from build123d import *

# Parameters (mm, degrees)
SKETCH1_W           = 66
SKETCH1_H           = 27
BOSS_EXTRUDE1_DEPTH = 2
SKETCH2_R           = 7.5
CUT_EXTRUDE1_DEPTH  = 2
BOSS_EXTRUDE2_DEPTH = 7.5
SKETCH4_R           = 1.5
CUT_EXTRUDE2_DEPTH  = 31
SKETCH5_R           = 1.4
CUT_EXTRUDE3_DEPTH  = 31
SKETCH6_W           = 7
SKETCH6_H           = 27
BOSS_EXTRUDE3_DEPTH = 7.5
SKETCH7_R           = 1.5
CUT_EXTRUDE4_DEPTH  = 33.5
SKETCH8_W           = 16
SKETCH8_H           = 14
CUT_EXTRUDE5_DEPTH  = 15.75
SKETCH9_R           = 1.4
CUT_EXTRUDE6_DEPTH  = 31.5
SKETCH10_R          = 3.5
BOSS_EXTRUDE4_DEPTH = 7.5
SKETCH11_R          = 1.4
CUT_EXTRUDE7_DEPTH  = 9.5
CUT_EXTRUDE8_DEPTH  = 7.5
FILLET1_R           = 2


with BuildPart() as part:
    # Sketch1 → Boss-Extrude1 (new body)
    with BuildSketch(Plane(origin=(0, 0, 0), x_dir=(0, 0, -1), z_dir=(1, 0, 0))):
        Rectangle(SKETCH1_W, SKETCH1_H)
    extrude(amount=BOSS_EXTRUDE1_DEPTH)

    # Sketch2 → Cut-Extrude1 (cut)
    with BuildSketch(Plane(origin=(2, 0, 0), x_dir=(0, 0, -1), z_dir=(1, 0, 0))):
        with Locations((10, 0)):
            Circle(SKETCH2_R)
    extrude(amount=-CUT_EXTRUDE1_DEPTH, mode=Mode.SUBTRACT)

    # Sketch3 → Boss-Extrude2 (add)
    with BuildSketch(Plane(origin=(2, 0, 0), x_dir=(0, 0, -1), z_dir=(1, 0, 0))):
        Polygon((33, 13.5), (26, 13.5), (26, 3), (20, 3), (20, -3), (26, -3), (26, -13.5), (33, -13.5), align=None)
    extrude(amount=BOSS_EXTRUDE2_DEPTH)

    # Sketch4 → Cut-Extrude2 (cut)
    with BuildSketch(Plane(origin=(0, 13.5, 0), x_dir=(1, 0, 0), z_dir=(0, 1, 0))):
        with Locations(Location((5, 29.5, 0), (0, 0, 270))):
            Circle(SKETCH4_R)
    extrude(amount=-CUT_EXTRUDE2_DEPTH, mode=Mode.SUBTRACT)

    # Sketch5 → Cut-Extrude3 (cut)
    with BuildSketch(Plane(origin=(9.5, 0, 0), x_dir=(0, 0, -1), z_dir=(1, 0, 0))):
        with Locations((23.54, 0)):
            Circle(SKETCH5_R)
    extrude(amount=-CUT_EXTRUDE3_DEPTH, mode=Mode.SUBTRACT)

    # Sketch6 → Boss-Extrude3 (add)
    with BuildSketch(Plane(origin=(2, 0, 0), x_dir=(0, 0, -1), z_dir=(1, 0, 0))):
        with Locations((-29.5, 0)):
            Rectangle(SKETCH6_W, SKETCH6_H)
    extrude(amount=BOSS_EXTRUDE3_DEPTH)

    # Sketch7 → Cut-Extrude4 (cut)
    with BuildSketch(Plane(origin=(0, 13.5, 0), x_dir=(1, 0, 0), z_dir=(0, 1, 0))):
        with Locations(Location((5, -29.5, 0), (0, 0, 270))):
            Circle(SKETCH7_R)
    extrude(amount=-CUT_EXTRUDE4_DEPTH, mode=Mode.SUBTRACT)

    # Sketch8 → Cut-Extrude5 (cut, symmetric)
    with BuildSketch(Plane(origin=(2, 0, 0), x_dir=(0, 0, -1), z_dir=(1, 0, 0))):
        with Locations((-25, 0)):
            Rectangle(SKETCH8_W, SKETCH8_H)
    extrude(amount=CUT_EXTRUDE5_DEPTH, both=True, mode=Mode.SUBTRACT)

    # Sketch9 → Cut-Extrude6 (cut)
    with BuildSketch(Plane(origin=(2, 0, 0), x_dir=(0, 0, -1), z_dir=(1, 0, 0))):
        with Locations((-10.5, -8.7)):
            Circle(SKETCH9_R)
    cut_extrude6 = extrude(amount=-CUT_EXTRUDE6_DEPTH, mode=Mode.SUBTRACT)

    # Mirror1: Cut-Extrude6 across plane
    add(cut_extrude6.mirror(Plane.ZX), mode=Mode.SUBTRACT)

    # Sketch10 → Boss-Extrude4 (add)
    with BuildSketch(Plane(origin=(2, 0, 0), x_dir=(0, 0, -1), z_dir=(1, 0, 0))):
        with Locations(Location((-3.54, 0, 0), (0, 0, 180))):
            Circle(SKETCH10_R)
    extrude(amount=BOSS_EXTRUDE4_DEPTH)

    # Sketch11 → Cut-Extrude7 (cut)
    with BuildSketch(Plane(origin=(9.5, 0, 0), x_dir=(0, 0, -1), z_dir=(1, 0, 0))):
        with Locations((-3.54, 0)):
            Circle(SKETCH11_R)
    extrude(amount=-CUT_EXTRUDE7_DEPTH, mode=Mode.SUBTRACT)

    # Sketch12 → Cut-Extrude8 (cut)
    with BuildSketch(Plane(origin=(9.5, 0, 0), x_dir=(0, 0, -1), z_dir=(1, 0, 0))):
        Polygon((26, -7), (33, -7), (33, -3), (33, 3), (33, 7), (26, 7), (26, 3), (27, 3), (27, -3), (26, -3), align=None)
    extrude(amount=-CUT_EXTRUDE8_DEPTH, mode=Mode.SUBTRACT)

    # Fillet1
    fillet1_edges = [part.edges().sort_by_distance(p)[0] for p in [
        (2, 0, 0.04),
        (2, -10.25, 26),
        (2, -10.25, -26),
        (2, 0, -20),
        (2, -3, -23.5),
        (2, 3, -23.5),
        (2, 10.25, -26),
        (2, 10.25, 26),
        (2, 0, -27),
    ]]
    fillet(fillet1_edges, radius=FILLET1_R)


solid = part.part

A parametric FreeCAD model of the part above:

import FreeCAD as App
import Part
import Sketcher

V = App.Vector
Q = App.Units.Quantity


def edges_at(feature, points):
    """Names of the edges that pass closest to the given points."""
    edges = feature.Shape.Edges
    near = lambda p: min(range(len(edges)), key=lambda i: edges[i].distToShape(Part.Vertex(*p))[0])
    return sorted({f"Edge{near(p) + 1}" for p in points})

doc = App.newDocument("Part")
body = doc.addObject("PartDesign::Body", "Body")

sketch1 = body.newObject("Sketcher::SketchObject", "Sketch")
sketch1.AttachmentSupport = (doc.getObject("YZ_Plane"), [""])
sketch1.MapMode = "FlatFace"
sketch1.addGeometry(Part.LineSegment(V(13.5, 33, 0), V(-13.5, 33, 0)), False)
sketch1.addGeometry(Part.LineSegment(V(-13.5, 33, 0), V(-13.5, -33, 0)), False)
sketch1.addGeometry(Part.LineSegment(V(-13.5, -33, 0), V(13.5, -33, 0)), False)
sketch1.addGeometry(Part.LineSegment(V(13.5, -33, 0), V(13.5, 33, 0)), False)
sketch1.addConstraint(Sketcher.Constraint("Coincident", 0, 2, 1, 1))
sketch1.addConstraint(Sketcher.Constraint("Coincident", 1, 2, 2, 1))
sketch1.addConstraint(Sketcher.Constraint("Coincident", 2, 2, 3, 1))
sketch1.addConstraint(Sketcher.Constraint("Coincident", 3, 2, 0, 1))
sketch1.addConstraint(Sketcher.Constraint("Horizontal", 0))
sketch1.addConstraint(Sketcher.Constraint("Vertical", 1))
sketch1.addConstraint(Sketcher.Constraint("Horizontal", 2))
sketch1.addConstraint(Sketcher.Constraint("Vertical", 3))
sketch1.addConstraint(Sketcher.Constraint("Symmetric", 0, 2, 2, 2, -1, 1))
sketch1.addConstraint(Sketcher.Constraint("DistanceX", 0, 2, 0, 1, Q("27 mm")))
sketch1.addConstraint(Sketcher.Constraint("DistanceY", 1, 2, 1, 1, Q("66 mm")))
pad1 = body.newObject("PartDesign::Pad", "Pad")
pad1.Profile = sketch1
pad1.Length = 2

sketch2 = body.newObject("Sketcher::SketchObject", "Sketch001")
sketch2.AttachmentSupport = (doc.getObject("YZ_Plane"), [""])
sketch2.MapMode = "FlatFace"
sketch2.AttachmentOffset = App.Placement(V(0, 0, 2), App.Rotation())
sketch2.addGeometry(Part.Circle(V(0, -10, 0), V(0, 0, 1), 7.5), False)
sketch2.addConstraint(Sketcher.Constraint("PointOnObject", 0, 3, -2))
sketch2.addConstraint(Sketcher.Constraint("Diameter", 0, Q("15 mm")))
sketch2.addConstraint(Sketcher.Constraint("DistanceY", 0, 3, -1, 1, Q("10 mm")))
pocket1 = body.newObject("PartDesign::Pocket", "Pocket")
pocket1.Profile = sketch2
pocket1.Length = 2

sketch3 = body.newObject("Sketcher::SketchObject", "Sketch002")
sketch3.AttachmentSupport = (doc.getObject("YZ_Plane"), [""])
sketch3.MapMode = "FlatFace"
sketch3.AttachmentOffset = App.Placement(V(0, 0, 2), App.Rotation())
sketch3.addGeometry(Part.LineSegment(V(13.5, -33, 0), V(13.5, -26, 0)), False)
sketch3.addGeometry(Part.LineSegment(V(13.5, -26, 0), V(3, -26, 0)), False)
sketch3.addGeometry(Part.LineSegment(V(3, -26, 0), V(3, -20, 0)), False)
sketch3.addGeometry(Part.LineSegment(V(3, -20, 0), V(-3, -20, 0)), False)
sketch3.addGeometry(Part.LineSegment(V(-3, -20, 0), V(-3, -26, 0)), False)
sketch3.addGeometry(Part.LineSegment(V(-3, -26, 0), V(-13.5, -26, 0)), False)
sketch3.addGeometry(Part.LineSegment(V(-13.5, -26, 0), V(-13.5, -33, 0)), False)
sketch3.addGeometry(Part.LineSegment(V(-13.5, -33, 0), V(13.5, -33, 0)), False)
sketch3.addConstraint(Sketcher.Constraint("Coincident", 0, 2, 1, 1))
sketch3.addConstraint(Sketcher.Constraint("Coincident", 1, 2, 2, 1))
sketch3.addConstraint(Sketcher.Constraint("Coincident", 2, 2, 3, 1))
sketch3.addConstraint(Sketcher.Constraint("Coincident", 3, 2, 4, 1))
sketch3.addConstraint(Sketcher.Constraint("Coincident", 4, 2, 5, 1))
sketch3.addConstraint(Sketcher.Constraint("Coincident", 5, 2, 6, 1))
sketch3.addConstraint(Sketcher.Constraint("Coincident", 6, 2, 7, 1))
sketch3.addConstraint(Sketcher.Constraint("Coincident", 7, 2, 0, 1))
sketch3.addConstraint(Sketcher.Constraint("Vertical", 0))
sketch3.addConstraint(Sketcher.Constraint("Horizontal", 1))
sketch3.addConstraint(Sketcher.Constraint("Vertical", 2))
sketch3.addConstraint(Sketcher.Constraint("Horizontal", 3))
sketch3.addConstraint(Sketcher.Constraint("Vertical", 4))
sketch3.addConstraint(Sketcher.Constraint("Horizontal", 5))
sketch3.addConstraint(Sketcher.Constraint("Vertical", 6))
sketch3.addConstraint(Sketcher.Constraint("Horizontal", 7))
sketch3.addConstraint(Sketcher.Constraint("Symmetric", 1, 2, 4, 2, -2))
sketch3.addConstraint(Sketcher.Constraint("Equal", 1, 5))
sketch3.addConstraint(Sketcher.Constraint("Equal", 3, 2))
sketch3.addConstraint(Sketcher.Constraint("DistanceX", 3, 2, 3, 1, Q("6 mm")))
sketch3.addConstraint(Sketcher.Constraint("DistanceX", 7, 1, 7, 2, Q("27 mm")))
sketch3.addConstraint(Sketcher.Constraint("DistanceY", 0, 1, 0, 2, Q("7 mm")))
sketch3.addConstraint(Sketcher.Constraint("DistanceY", 0, 2, -1, 1, Q("26 mm")))
pad2 = body.newObject("PartDesign::Pad", "Pad001")
pad2.Profile = sketch3
pad2.Length = 7.5

sketch4 = body.newObject("Sketcher::SketchObject", "Sketch003")
sketch4.AttachmentSupport = (doc.getObject("XZ_Plane"), [""])
sketch4.MapMode = "FlatFace"
sketch4.AttachmentOffset = App.Placement(V(0, 0, -13.5), App.Rotation())
sketch4.addGeometry(Part.Circle(V(5, -29.5, 0), V(0, 0, 1), 1.5), False)
sketch4.addConstraint(Sketcher.Constraint("Diameter", 0, Q("3 mm")))
sketch4.addConstraint(Sketcher.Constraint("DistanceX", -1, 1, 0, 3, Q("5 mm")))
sketch4.addConstraint(Sketcher.Constraint("DistanceY", 0, 3, -1, 1, Q("29.5 mm")))
pocket2 = body.newObject("PartDesign::Pocket", "Pocket001")
pocket2.Profile = sketch4
pocket2.Length = 31
pocket2.Reversed = True

sketch5 = body.newObject("Sketcher::SketchObject", "Sketch004")
sketch5.AttachmentSupport = (doc.getObject("YZ_Plane"), [""])
sketch5.MapMode = "FlatFace"
sketch5.AttachmentOffset = App.Placement(V(0, 0, 9.5), App.Rotation())
sketch5.addGeometry(Part.Circle(V(0, -23.54, 0), V(0, 0, 1), 1.4), False)
sketch5.addConstraint(Sketcher.Constraint("PointOnObject", 0, 3, -2))
sketch5.addConstraint(Sketcher.Constraint("Diameter", 0, Q("2.8 mm")))
sketch5.addConstraint(Sketcher.Constraint("DistanceY", 0, 3, -1, 1, Q("23.54 mm")))
pocket3 = body.newObject("PartDesign::Pocket", "Pocket002")
pocket3.Profile = sketch5
pocket3.Length = 31

sketch6 = body.newObject("Sketcher::SketchObject", "Sketch005")
sketch6.AttachmentSupport = (doc.getObject("YZ_Plane"), [""])
sketch6.MapMode = "FlatFace"
sketch6.AttachmentOffset = App.Placement(V(0, 0, 2), App.Rotation())
sketch6.addGeometry(Part.LineSegment(V(13.5, 33, 0), V(-13.5, 33, 0)), False)
sketch6.addGeometry(Part.LineSegment(V(-13.5, 33, 0), V(-13.5, 26, 0)), False)
sketch6.addGeometry(Part.LineSegment(V(-13.5, 26, 0), V(13.5, 26, 0)), False)
sketch6.addGeometry(Part.LineSegment(V(13.5, 26, 0), V(13.5, 33, 0)), False)
sketch6.addConstraint(Sketcher.Constraint("Coincident", 0, 2, 1, 1))
sketch6.addConstraint(Sketcher.Constraint("Coincident", 1, 2, 2, 1))
sketch6.addConstraint(Sketcher.Constraint("Coincident", 2, 2, 3, 1))
sketch6.addConstraint(Sketcher.Constraint("Coincident", 3, 2, 0, 1))
sketch6.addConstraint(Sketcher.Constraint("Horizontal", 0))
sketch6.addConstraint(Sketcher.Constraint("Vertical", 1))
sketch6.addConstraint(Sketcher.Constraint("Horizontal", 2))
sketch6.addConstraint(Sketcher.Constraint("Vertical", 3))
sketch6.addConstraint(Sketcher.Constraint("DistanceX", 0, 2, 0, 1, Q("27 mm")))
sketch6.addConstraint(Sketcher.Constraint("DistanceY", 1, 2, 1, 1, Q("7 mm")))
sketch6.addConstraint(Sketcher.Constraint("DistanceY", -1, 1, 0, 2, Q("33 mm")))
sketch6.addConstraint(Sketcher.Constraint("DistanceX", 0, 2, -1, 1, Q("13.5 mm")))
pad3 = body.newObject("PartDesign::Pad", "Pad002")
pad3.Profile = sketch6
pad3.Length = 7.5

sketch7 = body.newObject("Sketcher::SketchObject", "Sketch006")
sketch7.AttachmentSupport = (doc.getObject("XZ_Plane"), [""])
sketch7.MapMode = "FlatFace"
sketch7.AttachmentOffset = App.Placement(V(0, 0, -13.5), App.Rotation())
sketch7.addGeometry(Part.Circle(V(5, 29.5, 0), V(0, 0, 1), 1.5), False)
sketch7.addConstraint(Sketcher.Constraint("Diameter", 0, Q("3 mm")))
sketch7.addConstraint(Sketcher.Constraint("DistanceX", -1, 1, 0, 3, Q("5 mm")))
sketch7.addConstraint(Sketcher.Constraint("DistanceY", -1, 1, 0, 3, Q("29.5 mm")))
pocket4 = body.newObject("PartDesign::Pocket", "Pocket003")
pocket4.Profile = sketch7
pocket4.Length = 33.5
pocket4.Reversed = True

sketch8 = body.newObject("Sketcher::SketchObject", "Sketch007")
sketch8.AttachmentSupport = (doc.getObject("YZ_Plane"), [""])
sketch8.MapMode = "FlatFace"
sketch8.AttachmentOffset = App.Placement(V(0, 0, 2), App.Rotation())
sketch8.addGeometry(Part.LineSegment(V(7, 33, 0), V(-7, 33, 0)), False)
sketch8.addGeometry(Part.LineSegment(V(-7, 33, 0), V(-7, 17, 0)), False)
sketch8.addGeometry(Part.LineSegment(V(-7, 17, 0), V(7, 17, 0)), False)
sketch8.addGeometry(Part.LineSegment(V(7, 17, 0), V(7, 33, 0)), False)
sketch8.addConstraint(Sketcher.Constraint("Coincident", 0, 2, 1, 1))
sketch8.addConstraint(Sketcher.Constraint("Coincident", 1, 2, 2, 1))
sketch8.addConstraint(Sketcher.Constraint("Coincident", 2, 2, 3, 1))
sketch8.addConstraint(Sketcher.Constraint("Coincident", 3, 2, 0, 1))
sketch8.addConstraint(Sketcher.Constraint("Horizontal", 0))
sketch8.addConstraint(Sketcher.Constraint("Vertical", 1))
sketch8.addConstraint(Sketcher.Constraint("Horizontal", 2))
sketch8.addConstraint(Sketcher.Constraint("Vertical", 3))
sketch8.addConstraint(Sketcher.Constraint("DistanceX", 0, 2, 0, 1, Q("14 mm")))
sketch8.addConstraint(Sketcher.Constraint("DistanceY", 1, 2, 1, 1, Q("16 mm")))
sketch8.addConstraint(Sketcher.Constraint("DistanceX", 0, 2, -1, 1, Q("7 mm")))
sketch8.addConstraint(Sketcher.Constraint("DistanceY", -1, 1, 0, 2, Q("33 mm")))
pocket5 = body.newObject("PartDesign::Pocket", "Pocket004")
pocket5.Profile = sketch8
pocket5.Length = 31.5
pocket5.Midplane = True

sketch9 = body.newObject("Sketcher::SketchObject", "Sketch008")
sketch9.AttachmentSupport = (doc.getObject("YZ_Plane"), [""])
sketch9.MapMode = "FlatFace"
sketch9.AttachmentOffset = App.Placement(V(0, 0, 2), App.Rotation())
sketch9.addGeometry(Part.Circle(V(-8.7, 10.5, 0), V(0, 0, 1), 1.4), False)
sketch9.addConstraint(Sketcher.Constraint("Diameter", 0, Q("2.8 mm")))
sketch9.addConstraint(Sketcher.Constraint("DistanceX", 0, 3, -1, 1, Q("8.7 mm")))
sketch9.addConstraint(Sketcher.Constraint("DistanceY", -1, 1, 0, 3, Q("10.5 mm")))
pocket6 = body.newObject("PartDesign::Pocket", "Pocket005")
pocket6.Profile = sketch9
pocket6.Length = 31.5
doc.recompute()

mirrored = body.newObject("PartDesign::Mirrored", "Mirrored")
mirrored.Originals = [pocket6]
mirrored.MirrorPlane = (doc.getObject("XZ_Plane"), [""])
body.Tip = mirrored

sketch10 = body.newObject("Sketcher::SketchObject", "Sketch009")
sketch10.AttachmentSupport = (doc.getObject("YZ_Plane"), [""])
sketch10.MapMode = "FlatFace"
sketch10.AttachmentOffset = App.Placement(V(0, 0, 2), App.Rotation())
sketch10.addGeometry(Part.Circle(V(0, 3.54, 0), V(0, 0, 1), 3.5), False)
sketch10.addConstraint(Sketcher.Constraint("PointOnObject", 0, 3, -2))
sketch10.addConstraint(Sketcher.Constraint("Diameter", 0, Q("7 mm")))
sketch10.addConstraint(Sketcher.Constraint("DistanceY", -1, 1, 0, 3, Q("3.54 mm")))
pad4 = body.newObject("PartDesign::Pad", "Pad003")
pad4.Profile = sketch10
pad4.Length = 7.5

sketch11 = body.newObject("Sketcher::SketchObject", "Sketch010")
sketch11.AttachmentSupport = (doc.getObject("YZ_Plane"), [""])
sketch11.MapMode = "FlatFace"
sketch11.AttachmentOffset = App.Placement(V(0, 0, 9.5), App.Rotation())
sketch11.addGeometry(Part.Circle(V(0, 3.54, 0), V(0, 0, 1), 1.4), False)
sketch11.addConstraint(Sketcher.Constraint("PointOnObject", 0, 3, -2))
sketch11.addConstraint(Sketcher.Constraint("Diameter", 0, Q("2.8 mm")))
sketch11.addConstraint(Sketcher.Constraint("DistanceY", -1, 1, 0, 3, Q("3.54 mm")))
pocket7 = body.newObject("PartDesign::Pocket", "Pocket006")
pocket7.Profile = sketch11
pocket7.Length = 9.5

sketch12 = body.newObject("Sketcher::SketchObject", "Sketch011")
sketch12.AttachmentSupport = (doc.getObject("YZ_Plane"), [""])
sketch12.MapMode = "FlatFace"
sketch12.AttachmentOffset = App.Placement(V(0, 0, 9.5), App.Rotation())
sketch12.addGeometry(Part.LineSegment(V(-7, -26, 0), V(-7, -33, 0)), False)
sketch12.addGeometry(Part.LineSegment(V(-7, -33, 0), V(7, -33, 0)), False)
sketch12.addGeometry(Part.LineSegment(V(7, -33, 0), V(7, -26, 0)), False)
sketch12.addGeometry(Part.LineSegment(V(7, -26, 0), V(3, -26, 0)), False)
sketch12.addGeometry(Part.LineSegment(V(3, -26, 0), V(3, -27, 0)), False)
sketch12.addGeometry(Part.LineSegment(V(3, -27, 0), V(-3, -27, 0)), False)
sketch12.addGeometry(Part.LineSegment(V(-3, -27, 0), V(-3, -26, 0)), False)
sketch12.addGeometry(Part.LineSegment(V(-3, -26, 0), V(-7, -26, 0)), False)
sketch12.addConstraint(Sketcher.Constraint("Coincident", 0, 2, 1, 1))
sketch12.addConstraint(Sketcher.Constraint("Coincident", 1, 2, 2, 1))
sketch12.addConstraint(Sketcher.Constraint("Coincident", 2, 2, 3, 1))
sketch12.addConstraint(Sketcher.Constraint("Coincident", 3, 2, 4, 1))
sketch12.addConstraint(Sketcher.Constraint("Coincident", 4, 2, 5, 1))
sketch12.addConstraint(Sketcher.Constraint("Coincident", 5, 2, 6, 1))
sketch12.addConstraint(Sketcher.Constraint("Coincident", 6, 2, 7, 1))
sketch12.addConstraint(Sketcher.Constraint("Coincident", 7, 2, 0, 1))
sketch12.addConstraint(Sketcher.Constraint("Vertical", 0))
sketch12.addConstraint(Sketcher.Constraint("Horizontal", 1))
sketch12.addConstraint(Sketcher.Constraint("Vertical", 2))
sketch12.addConstraint(Sketcher.Constraint("Horizontal", 3))
sketch12.addConstraint(Sketcher.Constraint("Vertical", 4))
sketch12.addConstraint(Sketcher.Constraint("Horizontal", 5))
sketch12.addConstraint(Sketcher.Constraint("Vertical", 6))
sketch12.addConstraint(Sketcher.Constraint("Horizontal", 7))
sketch12.addConstraint(Sketcher.Constraint("Symmetric", 3, 2, 6, 2, -2))
sketch12.addConstraint(Sketcher.Constraint("Equal", 3, 7))
sketch12.addConstraint(Sketcher.Constraint("DistanceX", 1, 1, 1, 2, Q("14 mm")))
sketch12.addConstraint(Sketcher.Constraint("DistanceX", 3, 2, 3, 1, Q("4 mm")))
sketch12.addConstraint(Sketcher.Constraint("DistanceY", 0, 2, 0, 1, Q("7 mm")))
sketch12.addConstraint(Sketcher.Constraint("DistanceY", 4, 2, 4, 1, Q("1 mm")))
sketch12.addConstraint(Sketcher.Constraint("DistanceY", 0, 2, -1, 1, Q("33 mm")))
pocket8 = body.newObject("PartDesign::Pocket", "Pocket007")
pocket8.Profile = sketch12
pocket8.Length = 7.5
doc.recompute()

fillet = body.newObject("PartDesign::Fillet", "Fillet")
fillet.Base = (pocket8, edges_at(pocket8, [
    (2, 0, 0.04),
    (2, -10.25, 26),
    (2, -10.25, -26),
    (2, 0, -20),
    (2, -3, -23.5),
    (2, 3, -23.5),
    (2, 10.25, -26),
    (2, 10.25, 26),
    (2, 0, -27),
]))
fillet.Radius = 2

doc.recompute()
